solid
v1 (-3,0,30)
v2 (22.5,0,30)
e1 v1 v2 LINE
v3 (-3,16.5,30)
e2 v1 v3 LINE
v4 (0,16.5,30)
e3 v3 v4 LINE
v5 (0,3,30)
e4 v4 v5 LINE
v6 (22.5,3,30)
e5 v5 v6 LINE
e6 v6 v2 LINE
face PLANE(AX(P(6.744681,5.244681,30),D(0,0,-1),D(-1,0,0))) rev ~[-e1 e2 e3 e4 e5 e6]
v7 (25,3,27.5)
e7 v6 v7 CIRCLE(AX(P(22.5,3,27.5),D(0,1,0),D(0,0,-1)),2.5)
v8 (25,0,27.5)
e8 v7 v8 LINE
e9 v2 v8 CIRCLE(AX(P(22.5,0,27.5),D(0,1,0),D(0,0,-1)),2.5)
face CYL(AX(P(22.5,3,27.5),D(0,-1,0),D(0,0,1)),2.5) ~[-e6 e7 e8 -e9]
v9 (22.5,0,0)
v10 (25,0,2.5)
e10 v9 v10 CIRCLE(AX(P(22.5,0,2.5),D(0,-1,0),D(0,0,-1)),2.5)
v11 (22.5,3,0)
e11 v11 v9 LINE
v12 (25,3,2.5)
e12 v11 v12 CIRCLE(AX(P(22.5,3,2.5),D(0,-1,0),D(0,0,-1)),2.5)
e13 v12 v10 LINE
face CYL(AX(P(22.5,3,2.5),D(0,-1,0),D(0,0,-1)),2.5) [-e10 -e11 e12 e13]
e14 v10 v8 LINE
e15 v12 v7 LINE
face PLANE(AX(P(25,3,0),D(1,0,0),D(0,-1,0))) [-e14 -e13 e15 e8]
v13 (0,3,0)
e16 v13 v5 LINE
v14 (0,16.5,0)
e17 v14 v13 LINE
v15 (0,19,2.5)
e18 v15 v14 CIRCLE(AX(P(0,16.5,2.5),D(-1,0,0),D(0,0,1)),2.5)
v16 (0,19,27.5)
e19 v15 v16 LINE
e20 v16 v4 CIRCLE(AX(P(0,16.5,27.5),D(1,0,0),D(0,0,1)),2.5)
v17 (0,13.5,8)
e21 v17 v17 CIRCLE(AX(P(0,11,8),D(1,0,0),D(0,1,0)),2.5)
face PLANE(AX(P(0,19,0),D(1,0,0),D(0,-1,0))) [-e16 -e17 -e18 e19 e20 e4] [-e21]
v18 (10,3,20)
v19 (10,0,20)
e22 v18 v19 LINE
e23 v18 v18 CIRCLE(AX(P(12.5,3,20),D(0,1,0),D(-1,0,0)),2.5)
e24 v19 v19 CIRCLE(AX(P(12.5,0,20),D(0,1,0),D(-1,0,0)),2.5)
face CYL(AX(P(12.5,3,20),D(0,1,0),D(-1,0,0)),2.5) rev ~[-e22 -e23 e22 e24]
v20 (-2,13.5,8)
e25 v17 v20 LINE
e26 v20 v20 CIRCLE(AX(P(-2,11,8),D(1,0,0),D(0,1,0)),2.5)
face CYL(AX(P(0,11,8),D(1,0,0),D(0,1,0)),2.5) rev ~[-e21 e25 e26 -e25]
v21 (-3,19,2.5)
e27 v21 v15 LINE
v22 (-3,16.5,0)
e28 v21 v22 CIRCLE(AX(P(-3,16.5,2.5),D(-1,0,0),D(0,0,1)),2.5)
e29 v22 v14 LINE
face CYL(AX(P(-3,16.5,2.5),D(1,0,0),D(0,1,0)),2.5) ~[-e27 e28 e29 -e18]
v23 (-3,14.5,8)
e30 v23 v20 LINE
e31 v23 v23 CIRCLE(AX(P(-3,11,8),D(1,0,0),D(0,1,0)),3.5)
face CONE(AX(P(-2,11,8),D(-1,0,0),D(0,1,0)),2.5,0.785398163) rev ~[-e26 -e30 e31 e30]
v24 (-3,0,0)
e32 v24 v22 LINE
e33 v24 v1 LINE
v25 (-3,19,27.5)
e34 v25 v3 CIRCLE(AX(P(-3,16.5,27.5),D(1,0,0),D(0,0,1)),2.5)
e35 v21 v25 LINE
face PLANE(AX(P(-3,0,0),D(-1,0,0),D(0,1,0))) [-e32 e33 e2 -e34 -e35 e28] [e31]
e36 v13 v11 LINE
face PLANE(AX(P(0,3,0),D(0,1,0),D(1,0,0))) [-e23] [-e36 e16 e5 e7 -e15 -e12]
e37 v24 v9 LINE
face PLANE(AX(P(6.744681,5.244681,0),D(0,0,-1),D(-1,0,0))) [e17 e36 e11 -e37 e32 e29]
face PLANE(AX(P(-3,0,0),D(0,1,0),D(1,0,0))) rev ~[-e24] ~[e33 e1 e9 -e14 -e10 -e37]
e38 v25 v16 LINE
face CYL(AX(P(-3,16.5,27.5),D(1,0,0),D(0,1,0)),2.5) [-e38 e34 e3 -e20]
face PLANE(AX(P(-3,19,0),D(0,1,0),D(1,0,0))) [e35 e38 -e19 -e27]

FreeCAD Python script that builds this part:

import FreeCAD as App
import Part
import Sketcher
from FreeCAD import Vector


def edges_at(feature, points):
    """Names of the edges that pass closest to the given points."""
    edges = feature.Shape.Edges
    near = lambda p: min(range(len(edges)), key=lambda i: edges[i].distToShape(Part.Vertex(*p))[0])
    return sorted({f"Edge{near(p) + 1}" for p in points})

doc = App.newDocument("Part")
body = doc.addObject("PartDesign::Body", "Body")

sketch1 = body.newObject("Sketcher::SketchObject", "Sketch")
sketch1.AttachmentSupport = (doc.getObject("XY_Plane"), [""])
sketch1.MapMode = "FlatFace"
sketch1.addGeometry(Part.LineSegment(Vector(0, 19, 0), Vector(-3, 19, 0)), False)
sketch1.addGeometry(Part.LineSegment(Vector(-3, 19, 0), Vector(-3, 0, 0)), False)
sketch1.addGeometry(Part.LineSegment(Vector(-3, 0, 0), Vector(25, 0, 0)), False)
sketch1.addGeometry(Part.LineSegment(Vector(25, 0, 0), Vector(25, 3, 0)), False)
sketch1.addGeometry(Part.LineSegment(Vector(25, 3, 0), Vector(0, 3, 0)), False)
sketch1.addGeometry(Part.LineSegment(Vector(0, 3, 0), Vector(0, 19, 0)), False)
sketch1.addConstraint(Sketcher.Constraint("Coincident", 0, 2, 1, 1))
sketch1.addConstraint(Sketcher.Constraint("Coincident", 1, 2, 2, 1))
sketch1.addConstraint(Sketcher.Constraint("Coincident", 2, 2, 3, 1))
sketch1.addConstraint(Sketcher.Constraint("Coincident", 3, 2, 4, 1))
sketch1.addConstraint(Sketcher.Constraint("Coincident", 4, 2, 5, 1))
sketch1.addConstraint(Sketcher.Constraint("Coincident", 5, 2, 0, 1))
sketch1.addConstraint(Sketcher.Constraint("Horizontal", 0))
sketch1.addConstraint(Sketcher.Constraint("Vertical", 1))
sketch1.addConstraint(Sketcher.Constraint("Horizontal", 2))
sketch1.addConstraint(Sketcher.Constraint("Vertical", 3))
sketch1.addConstraint(Sketcher.Constraint("Horizontal", 4))
sketch1.addConstraint(Sketcher.Constraint("Vertical", 5))
sketch1.addConstraint(Sketcher.Constraint("PointOnObject", 1, 2, -1))
sketch1.addConstraint(Sketcher.Constraint("PointOnObject", 4, 2, -2))
sketch1.addConstraint(Sketcher.Constraint("Equal", 0, 3))
sketch1.addConstraint(Sketcher.Constraint("DistanceX", 0, 2, 0, 1, 3.0))
sketch1.addConstraint(Sketcher.Constraint("DistanceX", 2, 1, 2, 2, 28.0))
sketch1.addConstraint(Sketcher.Constraint("DistanceY", 1, 2, 1, 1, 19.0))
pad1 = body.newObject("PartDesign::Pad", "Pad")
pad1.Profile = sketch1
pad1.Length = 30

sketch2 = body.newObject("Sketcher::SketchObject", "Sketch001")
sketch2.AttachmentSupport = (doc.getObject("YZ_Plane"), [""])
sketch2.MapMode = "FlatFace"
sketch2.addGeometry(Part.Circle(Vector(11, 8, 0), Vector(0, 0, 1), 2.5), False)
sketch2.addConstraint(Sketcher.Constraint("Diameter", 0, 5.0))
sketch2.addConstraint(Sketcher.Constraint("DistanceX", -1, 1, 0, 3, 11.0))
sketch2.addConstraint(Sketcher.Constraint("DistanceY", -1, 1, 0, 3, 8.0))
pocket1 = body.newObject("PartDesign::Pocket", "Pocket")
pocket1.Profile = sketch2
pocket1.Type = "ThroughAll"

sketch3 = body.newObject("Sketcher::SketchObject", "Sketch002")
sketch3.AttachmentSupport = (doc.getObject("XZ_Plane"), [""])
sketch3.MapMode = "FlatFace"
sketch3.AttachmentOffset = App.Placement(Vector(0, 0, -3), App.Rotation())
sketch3.addGeometry(Part.Circle(Vector(12.5, 20, 0), Vector(0, 0, 1), 2.5), False)
sketch3.addConstraint(Sketcher.Constraint("Diameter", 0, 5.0))
sketch3.addConstraint(Sketcher.Constraint("DistanceY", -1, 1, 0, 3, 20.0))
sketch3.addConstraint(Sketcher.Constraint("DistanceX", -1, 1, 0, 3, 12.5))
pocket2 = body.newObject("PartDesign::Pocket", "Pocket001")
pocket2.Profile = sketch3
pocket2.Length = 5
pocket2.Reversed = True
doc.recompute()

fillet = body.newObject("PartDesign::Fillet", "Fillet")
fillet.Base = (pocket2, edges_at(pocket2, [
    (25, 1.5, 0),
    (25, 1.5, 30),
    (-1.5, 19, 30),
    (-1.5, 19, 0),
]))
fillet.Radius = 2.5
doc.recompute()

chamfer = body.newObject("PartDesign::Chamfer", "Chamfer")
chamfer.Base = (fillet, edges_at(fillet, [(-3, 8.5, 8)]))
chamfer.Size = 1

doc.recompute()
